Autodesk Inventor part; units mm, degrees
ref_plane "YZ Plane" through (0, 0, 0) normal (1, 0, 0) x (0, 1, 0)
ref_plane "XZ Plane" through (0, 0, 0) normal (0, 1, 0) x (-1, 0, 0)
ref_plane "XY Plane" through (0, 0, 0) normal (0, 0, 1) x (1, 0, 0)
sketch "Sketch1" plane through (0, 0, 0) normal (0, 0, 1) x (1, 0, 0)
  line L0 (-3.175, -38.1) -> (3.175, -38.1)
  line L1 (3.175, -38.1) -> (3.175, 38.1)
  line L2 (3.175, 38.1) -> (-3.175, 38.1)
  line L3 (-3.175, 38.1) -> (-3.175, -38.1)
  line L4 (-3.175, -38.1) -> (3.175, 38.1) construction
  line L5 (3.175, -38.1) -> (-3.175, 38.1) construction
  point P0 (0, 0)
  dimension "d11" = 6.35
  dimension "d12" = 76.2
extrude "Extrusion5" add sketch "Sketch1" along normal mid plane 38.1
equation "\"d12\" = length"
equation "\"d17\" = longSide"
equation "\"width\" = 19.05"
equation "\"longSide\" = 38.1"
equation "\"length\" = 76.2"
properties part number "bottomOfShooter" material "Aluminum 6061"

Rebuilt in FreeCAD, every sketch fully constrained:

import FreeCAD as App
import Part
import Sketcher

V = App.Vector
Q = App.Units.Quantity


def add_polygon(sketch, points):
    """Adds a closed chain of lines whose ends are joined by coincident constraints."""
    first, n = sketch.GeometryCount, len(points)
    for a, b in zip(points, points[1:] + points[:1]):
        sketch.addGeometry(Part.LineSegment(App.Vector(*a, 0), App.Vector(*b, 0)), False)
    for i in range(n):
        sketch.addConstraint(Sketcher.Constraint("Coincident", first + i, 2, first + (i + 1) % n, 1))

doc = App.newDocument("Part")
params = doc.addObject("Spreadsheet::Sheet", "Params")
for row, (alias, value) in enumerate([
    ("sketch1_height", "3 in"),
    ("sketch1_width", "0.25 in"),
    ("pad1_length", "1.5 in"),
], start=1):
    params.set(f"A{row}", alias)
    params.set(f"B{row}", "=" + value)
    params.setAlias(f"B{row}", alias)

body = doc.addObject("PartDesign::Body", "Body")

# Sketch on XY plane
sketch1 = body.newObject("Sketcher::SketchObject", "Sketch")
sketch1.AttachmentSupport = (doc.getObject("XY_Plane"), [""])
sketch1.MapMode = "FlatFace"
add_polygon(sketch1, [(-3, 38), (-3, -38), (3, -38), (3, 38)])  # lines 0-3
sketch1.addConstraint(Sketcher.Constraint("Vertical", 0))
sketch1.addConstraint(Sketcher.Constraint("Horizontal", 1))
sketch1.addConstraint(Sketcher.Constraint("Vertical", 2))
sketch1.addConstraint(Sketcher.Constraint("Horizontal", 3))
sketch1.addConstraint(Sketcher.Constraint("Symmetric", 0, 2, 2, 2, -1, 1))
sketch1.addConstraint(Sketcher.Constraint("DistanceY", 0, 2, 0, 1, Q("3 in")))
sketch1.addConstraint(Sketcher.Constraint("DistanceX", 1, 1, 1, 2, Q("0.25 in")))
sketch1.setExpression("Constraints[9]", "Params.sketch1_height")
sketch1.setExpression("Constraints[10]", "Params.sketch1_width")
pad1 = body.newObject("PartDesign::Pad", "Pad")
pad1.Profile = sketch1
pad1.setExpression("Length", "Params.pad1_length")
pad1.Midplane = True

doc.recompute()
